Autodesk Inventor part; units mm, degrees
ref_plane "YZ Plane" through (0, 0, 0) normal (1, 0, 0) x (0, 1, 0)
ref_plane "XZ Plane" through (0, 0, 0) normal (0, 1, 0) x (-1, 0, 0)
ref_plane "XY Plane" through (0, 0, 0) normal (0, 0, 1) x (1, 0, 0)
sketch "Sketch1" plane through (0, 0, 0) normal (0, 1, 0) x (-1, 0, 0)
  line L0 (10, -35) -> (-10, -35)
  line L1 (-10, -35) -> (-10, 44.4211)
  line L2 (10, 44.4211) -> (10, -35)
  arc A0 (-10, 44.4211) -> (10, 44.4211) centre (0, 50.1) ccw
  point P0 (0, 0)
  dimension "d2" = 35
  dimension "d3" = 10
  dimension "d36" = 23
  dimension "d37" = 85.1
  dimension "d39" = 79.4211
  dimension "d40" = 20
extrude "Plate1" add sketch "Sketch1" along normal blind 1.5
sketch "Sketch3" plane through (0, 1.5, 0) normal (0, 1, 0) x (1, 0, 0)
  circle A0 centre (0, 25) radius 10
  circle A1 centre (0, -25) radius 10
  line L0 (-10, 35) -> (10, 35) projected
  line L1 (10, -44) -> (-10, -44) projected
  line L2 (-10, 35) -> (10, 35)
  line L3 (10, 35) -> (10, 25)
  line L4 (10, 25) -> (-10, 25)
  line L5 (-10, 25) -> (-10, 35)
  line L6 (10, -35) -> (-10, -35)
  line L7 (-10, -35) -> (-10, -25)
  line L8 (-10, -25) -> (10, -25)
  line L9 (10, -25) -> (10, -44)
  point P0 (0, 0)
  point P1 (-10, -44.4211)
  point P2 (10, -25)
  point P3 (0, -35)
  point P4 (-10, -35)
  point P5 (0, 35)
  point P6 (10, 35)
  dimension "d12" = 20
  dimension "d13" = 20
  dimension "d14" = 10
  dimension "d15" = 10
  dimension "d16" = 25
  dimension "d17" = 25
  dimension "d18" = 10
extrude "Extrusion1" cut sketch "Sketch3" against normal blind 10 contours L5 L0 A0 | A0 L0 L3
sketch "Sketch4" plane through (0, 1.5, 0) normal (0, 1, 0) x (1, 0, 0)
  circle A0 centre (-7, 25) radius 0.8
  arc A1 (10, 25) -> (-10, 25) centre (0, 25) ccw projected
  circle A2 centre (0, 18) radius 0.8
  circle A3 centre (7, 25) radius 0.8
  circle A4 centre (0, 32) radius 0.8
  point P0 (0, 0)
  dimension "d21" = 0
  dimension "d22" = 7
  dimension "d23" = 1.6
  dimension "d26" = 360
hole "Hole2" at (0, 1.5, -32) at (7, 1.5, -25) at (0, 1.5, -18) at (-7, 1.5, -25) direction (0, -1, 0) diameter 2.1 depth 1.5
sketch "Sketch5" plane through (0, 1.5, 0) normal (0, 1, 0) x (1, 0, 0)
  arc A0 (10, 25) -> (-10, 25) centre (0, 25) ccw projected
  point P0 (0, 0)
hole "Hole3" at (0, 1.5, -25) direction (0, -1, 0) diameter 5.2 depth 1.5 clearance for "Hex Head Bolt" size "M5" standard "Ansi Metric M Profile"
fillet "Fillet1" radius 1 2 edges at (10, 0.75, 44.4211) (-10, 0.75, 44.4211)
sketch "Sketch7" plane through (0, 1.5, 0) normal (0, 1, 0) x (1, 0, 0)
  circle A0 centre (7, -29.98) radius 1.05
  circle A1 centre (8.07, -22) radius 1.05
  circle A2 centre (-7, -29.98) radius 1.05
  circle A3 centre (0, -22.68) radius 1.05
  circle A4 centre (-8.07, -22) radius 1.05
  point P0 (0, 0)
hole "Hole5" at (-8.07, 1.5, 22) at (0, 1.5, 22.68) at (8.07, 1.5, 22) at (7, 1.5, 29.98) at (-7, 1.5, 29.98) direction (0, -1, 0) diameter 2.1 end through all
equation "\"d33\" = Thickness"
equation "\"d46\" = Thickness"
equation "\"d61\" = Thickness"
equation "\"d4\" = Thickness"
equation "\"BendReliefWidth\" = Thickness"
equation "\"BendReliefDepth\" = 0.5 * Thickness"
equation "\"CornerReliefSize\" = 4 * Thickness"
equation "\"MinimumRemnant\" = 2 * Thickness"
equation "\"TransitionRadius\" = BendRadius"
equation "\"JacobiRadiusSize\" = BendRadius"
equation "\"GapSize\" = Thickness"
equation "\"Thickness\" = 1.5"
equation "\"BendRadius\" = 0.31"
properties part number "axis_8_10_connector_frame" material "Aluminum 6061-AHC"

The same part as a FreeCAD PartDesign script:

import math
import FreeCAD as App
import Part
import Sketcher
from FreeCAD import Vector
Q = App.Units.Quantity


def edges_at(feature, points):
    """Names of the edges that pass closest to the given points."""
    edges = feature.Shape.Edges
    near = lambda p: min(range(len(edges)), key=lambda i: edges[i].distToShape(Part.Vertex(*p))[0])
    return sorted({f"Edge{near(p) + 1}" for p in points})

doc = App.newDocument("Part")
body = doc.addObject("PartDesign::Body", "Body")

# Sketch on XZ plane
sketch1 = doc.addObject("Sketcher::SketchObject", "Sketch")
body.addObject(sketch1)
sketch1.AttachmentSupport = (doc.XZ_Plane, [""])
sketch1.MapMode = "FlatFace"
sketch1.addGeometry(Part.LineSegment(Vector(10, -35, 0), Vector(-10, -35, 0)), False)
sketch1.addGeometry(Part.LineSegment(Vector(-10, -35, 0), Vector(-10, 44, 0)), False)
sketch1.addGeometry(Part.ArcOfCircle(Part.Circle(Vector(0, 50, 0), Vector(0, 0, 1), 11), math.radians(-150), math.radians(-30)), False)
sketch1.addGeometry(Part.LineSegment(Vector(10, 44, 0), Vector(10, -35, 0)), False)
sketch1.addConstraint(Sketcher.Constraint("Coincident", 0, 2, 1, 1))
sketch1.addConstraint(Sketcher.Constraint("Coincident", 1, 2, 2, 1))
sketch1.addConstraint(Sketcher.Constraint("Coincident", 2, 2, 3, 1))
sketch1.addConstraint(Sketcher.Constraint("Coincident", 3, 2, 0, 1))
sketch1.addConstraint(Sketcher.Constraint("Horizontal", 0))
sketch1.addConstraint(Sketcher.Constraint("Vertical", 1))
sketch1.addConstraint(Sketcher.Constraint("Vertical", 3))
sketch1.addConstraint(Sketcher.Constraint("Symmetric", 1, 2, 2, 2, -2))
sketch1.addConstraint(Sketcher.Constraint("Radius", 2, Q("11.5 mm")))
sketch1.addConstraint(Sketcher.Constraint("DistanceX", 0, 2, 0, 1, Q("20 mm")))
sketch1.addConstraint(Sketcher.Constraint("DistanceY", 0, 2, -1, 1, Q("35 mm")))
sketch1.addConstraint(Sketcher.Constraint("DistanceY", 0, 2, 2, 3, Q("85.1 mm")))
pad1 = doc.addObject("PartDesign::Pad", "Pad")
body.addObject(pad1)
pad1.Profile = sketch1
pad1.Length = 1.5
pad1.Reversed = True

# Sketch on XZ plane
sketch2 = doc.addObject("Sketcher::SketchObject", "Sketch001")
body.addObject(sketch2)
sketch2.AttachmentSupport = (doc.XZ_Plane, [""])
sketch2.MapMode = "FlatFace"
sketch2.AttachmentOffset = App.Placement(Vector(0, 0, -1.5), App.Rotation())
sketch2.addGeometry(Part.LineSegment(Vector(-10, -35, 0), Vector(-10, -25, 0)), False)
sketch2.addGeometry(Part.ArcOfCircle(Part.Circle(Vector(0, -25, 0), Vector(0, 0, 1), 10), math.radians(180), math.radians(270)), False)
sketch2.addGeometry(Part.LineSegment(Vector(0, -35, 0), Vector(-10, -35, 0)), False)
sketch2.addGeometry(Part.ArcOfCircle(Part.Circle(Vector(0, -25, 0), Vector(0, 0, 1), 10), math.radians(-90), math.radians(0)), False)
sketch2.addGeometry(Part.LineSegment(Vector(10, -25, 0), Vector(10, -35, 0)), False)
sketch2.addGeometry(Part.LineSegment(Vector(10, -35, 0), Vector(0, -35, 0)), False)
sketch2.addConstraint(Sketcher.Constraint("Tangent", 0, 2, 1, 1))
sketch2.addConstraint(Sketcher.Constraint("Tangent", 1, 2, 2, 1))
sketch2.addConstraint(Sketcher.Constraint("Coincident", 2, 2, 0, 1))
sketch2.addConstraint(Sketcher.Constraint("Tangent", 3, 2, 4, 1))
sketch2.addConstraint(Sketcher.Constraint("Coincident", 4, 2, 5, 1))
sketch2.addConstraint(Sketcher.Constraint("Tangent", 5, 2, 3, 1))
sketch2.addConstraint(Sketcher.Constraint("Vertical", 0))
sketch2.addConstraint(Sketcher.Constraint("Horizontal", 2))
sketch2.addConstraint(Sketcher.Constraint("Vertical", 4))
sketch2.addConstraint(Sketcher.Constraint("Horizontal", 5))
sketch2.addConstraint(Sketcher.Constraint("Coincident", 3, 3, 1, 3))
sketch2.addConstraint(Sketcher.Constraint("Equal", 1, 3))
sketch2.addConstraint(Sketcher.Constraint("PointOnObject", 1, 3, -2))
sketch2.addConstraint(Sketcher.Constraint("Radius", 1, Q("10 mm")))
sketch2.addConstraint(Sketcher.Constraint("DistanceY", 1, 3, -1, 1, Q("25 mm")))
pocket1 = doc.addObject("PartDesign::Pocket", "Pocket")
body.addObject(pocket1)
pocket1.Profile = sketch2
pocket1.Length = 10
pocket1.Reversed = True

# Sketch on XZ plane
sketch3 = doc.addObject("Sketcher::SketchObject", "Sketch002")
body.addObject(sketch3)
sketch3.AttachmentSupport = (doc.XZ_Plane, [""])
sketch3.MapMode = "FlatFace"
sketch3.AttachmentOffset = App.Placement(Vector(0, 0, -1.5), App.Rotation())
sketch3.addGeometry(Part.Circle(Vector(0, -32, 0), Vector(0, 0, 1), 1.1), False)
sketch3.addGeometry(Part.Circle(Vector(7, -25, 0), Vector(0, 0, 1), 1.1), False)
sketch3.addGeometry(Part.Circle(Vector(0, -18, 0), Vector(0, 0, 1), 1.1), False)
sketch3.addGeometry(Part.Circle(Vector(-7, -25, 0), Vector(0, 0, 1), 1.1), False)
sketch3.addConstraint(Sketcher.Constraint("Equal", 0, 1))
sketch3.addConstraint(Sketcher.Constraint("Equal", 1, 2))
sketch3.addConstraint(Sketcher.Constraint("Equal", 2, 3))
sketch3.addConstraint(Sketcher.Constraint("Symmetric", 1, 3, 3, 3, -2))
sketch3.addConstraint(Sketcher.Constraint("PointOnObject", 0, 3, -2))
sketch3.addConstraint(Sketcher.Constraint("PointOnObject", 2, 3, -2))
sketch3.addConstraint(Sketcher.Constraint("Diameter", 0, Q("2.1 mm")))
sketch3.addConstraint(Sketcher.Constraint("DistanceY", 0, 3, -1, 1, Q("32 mm")))
sketch3.addConstraint(Sketcher.Constraint("DistanceX", -1, 1, 1, 3, Q("7 mm")))
sketch3.addConstraint(Sketcher.Constraint("DistanceY", 1, 3, -1, 1, Q("25 mm")))
sketch3.addConstraint(Sketcher.Constraint("DistanceY", 2, 3, -1, 1, Q("18 mm")))
doc.recompute()
hole = doc.addObject("PartDesign::Hole", "Hole")
body.addObject(hole)
hole.Profile = sketch3
hole.ThreadType = "None"
hole.Diameter = 2.1
hole.DepthType = "Dimension"
hole.Depth = 1.5
hole.DrillPoint = "Flat"
hole.Reversed = True

# Sketch on XZ plane
sketch4 = doc.addObject("Sketcher::SketchObject", "Sketch003")
body.addObject(sketch4)
sketch4.AttachmentSupport = (doc.XZ_Plane, [""])
sketch4.MapMode = "FlatFace"
sketch4.AttachmentOffset = App.Placement(Vector(0, 0, -1.5), App.Rotation())
sketch4.addGeometry(Part.Circle(Vector(0, -25, 0), Vector(0, 0, 1), 2.6), False)
sketch4.addConstraint(Sketcher.Constraint("PointOnObject", 0, 3, -2))
sketch4.addConstraint(Sketcher.Constraint("Diameter", 0, Q("5.2 mm")))
sketch4.addConstraint(Sketcher.Constraint("DistanceY", 0, 3, -1, 1, Q("25 mm")))
doc.recompute()
hole2 = doc.addObject("PartDesign::Hole", "Hole001")
body.addObject(hole2)
hole2.Profile = sketch4
hole2.ThreadType = "None"
hole2.Diameter = 5.2
hole2.DepthType = "Dimension"
hole2.Depth = 1.5
hole2.DrillPoint = "Flat"
hole2.Reversed = True
doc.recompute()

fillet = doc.addObject("PartDesign::Fillet", "Fillet")
body.addObject(fillet)
fillet.Base = (hole2, edges_at(hole2, [(10, 0.75, 44.421), (-10, 0.75, 44.421)]))
fillet.Radius = 1

# Sketch on XZ plane
sketch5 = doc.addObject("Sketcher::SketchObject", "Sketch004")
body.addObject(sketch5)
sketch5.AttachmentSupport = (doc.XZ_Plane, [""])
sketch5.MapMode = "FlatFace"
sketch5.AttachmentOffset = App.Placement(Vector(0, 0, -1.5), App.Rotation())
sketch5.addGeometry(Part.Circle(Vector(-8.1, 22, 0), Vector(0, 0, 1), 1.1), False)
sketch5.addGeometry(Part.Circle(Vector(0, 22.7, 0), Vector(0, 0, 1), 1.1), False)
sketch5.addGeometry(Part.Circle(Vector(8.1, 22, 0), Vector(0, 0, 1), 1.1), False)
sketch5.addGeometry(Part.Circle(Vector(7, 30, 0), Vector(0, 0, 1), 1.1), False)
sketch5.addGeometry(Part.Circle(Vector(-7, 30, 0), Vector(0, 0, 1), 1.1), False)
sketch5.addConstraint(Sketcher.Constraint("Equal", 0, 1))
sketch5.addConstraint(Sketcher.Constraint("Equal", 1, 2))
sketch5.addConstraint(Sketcher.Constraint("Equal", 2, 3))
sketch5.addConstraint(Sketcher.Constraint("Equal", 3, 4))
sketch5.addConstraint(Sketcher.Constraint("Symmetric", 0, 3, 2, 3, -2))
sketch5.addConstraint(Sketcher.Constraint("Symmetric", 3, 3, 4, 3, -2))
sketch5.addConstraint(Sketcher.Constraint("PointOnObject", 1, 3, -2))
sketch5.addConstraint(Sketcher.Constraint("Diameter", 0, Q("2.1 mm")))
sketch5.addConstraint(Sketcher.Constraint("DistanceY", -1, 1, 0, 3, Q("22 mm")))
sketch5.addConstraint(Sketcher.Constraint("DistanceX", -1, 1, 3, 3, Q("7 mm")))
sketch5.addConstraint(Sketcher.Constraint("DistanceY", 1, 3, 3, 3, Q("7.3 mm")))
sketch5.addConstraint(Sketcher.Constraint("DistanceX", 0, 3, -1, 1, Q("8.07 mm")))
sketch5.addConstraint(Sketcher.Constraint("DistanceY", -1, 1, 1, 3, Q("22.68 mm")))
doc.recompute()
hole3 = doc.addObject("PartDesign::Hole", "Hole002")
body.addObject(hole3)
hole3.Profile = sketch5
hole3.ThreadType = "None"
hole3.Diameter = 2.1
hole3.DepthType = "ThroughAll"
hole3.Reversed = True

doc.recompute()
